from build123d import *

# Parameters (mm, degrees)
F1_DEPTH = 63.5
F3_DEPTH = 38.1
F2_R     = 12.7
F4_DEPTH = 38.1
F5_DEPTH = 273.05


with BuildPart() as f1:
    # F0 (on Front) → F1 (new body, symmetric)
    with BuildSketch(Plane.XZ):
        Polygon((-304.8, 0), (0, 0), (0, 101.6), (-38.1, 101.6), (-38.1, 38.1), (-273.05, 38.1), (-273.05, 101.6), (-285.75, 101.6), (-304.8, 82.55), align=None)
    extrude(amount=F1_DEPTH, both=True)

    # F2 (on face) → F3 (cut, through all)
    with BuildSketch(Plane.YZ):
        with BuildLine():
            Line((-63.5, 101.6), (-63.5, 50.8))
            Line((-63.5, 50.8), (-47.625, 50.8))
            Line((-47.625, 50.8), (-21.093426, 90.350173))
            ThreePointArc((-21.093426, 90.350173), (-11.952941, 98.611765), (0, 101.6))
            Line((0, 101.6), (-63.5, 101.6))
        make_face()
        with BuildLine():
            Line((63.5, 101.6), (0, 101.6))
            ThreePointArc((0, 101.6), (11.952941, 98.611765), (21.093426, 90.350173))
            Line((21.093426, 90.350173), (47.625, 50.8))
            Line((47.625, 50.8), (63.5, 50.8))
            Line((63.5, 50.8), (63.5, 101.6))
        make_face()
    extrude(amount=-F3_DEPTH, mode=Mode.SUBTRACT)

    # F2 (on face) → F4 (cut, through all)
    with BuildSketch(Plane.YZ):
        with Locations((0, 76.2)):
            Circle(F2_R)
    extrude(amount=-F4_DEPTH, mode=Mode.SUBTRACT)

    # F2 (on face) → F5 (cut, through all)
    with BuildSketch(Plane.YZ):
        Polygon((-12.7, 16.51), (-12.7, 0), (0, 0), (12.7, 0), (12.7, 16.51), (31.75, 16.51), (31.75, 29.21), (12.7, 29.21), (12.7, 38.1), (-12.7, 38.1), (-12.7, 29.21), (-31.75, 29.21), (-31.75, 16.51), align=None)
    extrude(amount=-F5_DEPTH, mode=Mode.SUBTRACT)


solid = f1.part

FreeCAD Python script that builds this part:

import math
import FreeCAD as App
import Part
import Sketcher

V = App.Vector
Q = App.Units.Quantity


def add_polygon(sketch, points):
    """Adds a closed chain of lines whose ends are joined by coincident constraints."""
    first, n = sketch.GeometryCount, len(points)
    for a, b in zip(points, points[1:] + points[:1]):
        sketch.addGeometry(Part.LineSegment(App.Vector(*a, 0), App.Vector(*b, 0)), False)
    for i in range(n):
        sketch.addConstraint(Sketcher.Constraint("Coincident", first + i, 2, first + (i + 1) % n, 1))

doc = App.newDocument("Part")
params = doc.addObject("Spreadsheet::Sheet", "Params")
for row, (alias, value) in enumerate([
    ("sketch1_width", "12 in"),
    ("sketch1_height", "4 in"),
    ("sketch1_width2", "1.5 in"),
    ("sketch1_width3", "0.5 in"),
    ("sketch1_height2", "2.5 in"),
    ("pad1_length", "5 in"),
    ("sketch2_radius", "1 in"),
    ("sketch2_height", "2 in"),
    ("sketch2_width", "2.5 in"),
    ("sketch2_width2", "0.625 in"),
    ("pocket1_length", "1.5 in"),
    ("sketch3_diameter", "1 in"),
    ("pocket2_length", "1.5 in"),
    ("sketch4_width", "1 in"),
    ("sketch4_height", "0.5 in"),
    ("sketch4_width2", "0.75 in"),
    ("sketch4_height2", "0.65 in"),
    ("sketch4_height3", "0.35 in"),
    ("pocket3_length", "10.75 in"),
], start=1):
    params.set(f"A{row}", alias)
    params.set(f"B{row}", "=" + value)
    params.setAlias(f"B{row}", alias)

body = doc.addObject("PartDesign::Body", "Body")

sketch1 = doc.addObject("Sketcher::SketchObject", "Sketch")
body.addObject(sketch1)
sketch1.AttachmentSupport = (doc.XZ_Plane, [""])
sketch1.MapMode = "FlatFace"
add_polygon(sketch1, [(-304.8, 0), (0, 0), (0, 101.6), (-38.1, 101.6), (-38.1, 38.1), (-273.05, 38.1), (-273.05, 101.6), (-285.75, 101.6), (-304.8, 82.55)])
sketch1.addConstraint(Sketcher.Constraint("Horizontal", 0))
sketch1.addConstraint(Sketcher.Constraint("Vertical", 1))
sketch1.addConstraint(Sketcher.Constraint("Horizontal", 2))
sketch1.addConstraint(Sketcher.Constraint("Vertical", 3))
sketch1.addConstraint(Sketcher.Constraint("Horizontal", 4))
sketch1.addConstraint(Sketcher.Constraint("Vertical", 5))
sketch1.addConstraint(Sketcher.Constraint("Horizontal", 6))
sketch1.addConstraint(Sketcher.Constraint("Vertical", 8))
sketch1.addConstraint(Sketcher.Constraint("Coincident", 0, 2, -1, 1))
sketch1.addConstraint(Sketcher.Constraint("Horizontal", 2, 2, 5, 2))
sketch1.addConstraint(Sketcher.Constraint("DistanceX", 0, 1, 0, 2, Q("12 in")))
sketch1.addConstraint(Sketcher.Constraint("DistanceY", 1, 1, 1, 2, Q("4 in")))
sketch1.addConstraint(Sketcher.Constraint("DistanceX", 2, 2, 2, 1, Q("1.5 in")))
sketch1.addConstraint(Sketcher.Constraint("DistanceX", 6, 2, 6, 1, Q("0.5 in")))
sketch1.addConstraint(Sketcher.Constraint("DistanceY", 3, 2, 3, 1, Q("2.5 in")))
sketch1.addConstraint(Sketcher.Constraint("Angle", 7, Q("-135 deg")))
sketch1.addConstraint(Sketcher.Constraint("DistanceX", 4, 2, 4, 1, Q("9.25 in")))
sketch1.setExpression("Constraints[19]", "Params.sketch1_width")
sketch1.setExpression("Constraints[20]", "Params.sketch1_height")
sketch1.setExpression("Constraints[21]", "Params.sketch1_width2")
sketch1.setExpression("Constraints[22]", "Params.sketch1_width3")
sketch1.setExpression("Constraints[23]", "Params.sketch1_height2")
pad1 = doc.addObject("PartDesign::Pad", "Pad")
body.addObject(pad1)
pad1.Profile = sketch1
pad1.setExpression("Length", "Params.pad1_length")
pad1.Midplane = True

sketch2 = doc.addObject("Sketcher::SketchObject", "Sketch001")
body.addObject(sketch2)
sketch2.AttachmentSupport = (doc.YZ_Plane, [""])
sketch2.MapMode = "FlatFace"
sketch2.addGeometry(Part.LineSegment(V(-63.5, 101.6, 0), V(-63.5, 50.8, 0)), False)
sketch2.addGeometry(Part.LineSegment(V(-63.5, 50.8, 0), V(-47.625, 50.8, 0)), False)
sketch2.addGeometry(Part.LineSegment(V(-47.625, 50.8, 0), V(-21.093426, 90.350173, 0)), False)
sketch2.addGeometry(Part.ArcOfCircle(Part.Circle(V(0, 76.2, 0), V(0, 0, 1), 25.4), math.radians(89.999999), math.radians(146.144974)), False)
sketch2.addGeometry(Part.LineSegment(V(0, 101.6, 0), V(-63.5, 101.6, 0)), False)
sketch2.addGeometry(Part.LineSegment(V(63.5, 101.6, 0), V(0, 101.6, 0)), False)
sketch2.addGeometry(Part.ArcOfCircle(Part.Circle(V(0, 76.2, 0), V(0, 0, 1), 25.4), math.radians(33.855026), math.radians(90.000001)), False)
sketch2.addGeometry(Part.LineSegment(V(21.093426, 90.350173, 0), V(47.625, 50.8, 0)), False)
sketch2.addGeometry(Part.LineSegment(V(47.625, 50.8, 0), V(63.5, 50.8, 0)), False)
sketch2.addGeometry(Part.LineSegment(V(63.5, 50.8, 0), V(63.5, 101.6, 0)), False)
sketch2.addConstraint(Sketcher.Constraint("Coincident", 0, 2, 1, 1))
sketch2.addConstraint(Sketcher.Constraint("Coincident", 1, 2, 2, 1))
sketch2.addConstraint(Sketcher.Constraint("Tangent", 2, 2, 3, 2))
sketch2.addConstraint(Sketcher.Constraint("Tangent", 3, 1, 4, 1))
sketch2.addConstraint(Sketcher.Constraint("Coincident", 4, 2, 0, 1))
sketch2.addConstraint(Sketcher.Constraint("Tangent", 5, 2, 6, 2))
sketch2.addConstraint(Sketcher.Constraint("Tangent", 6, 1, 7, 1))
sketch2.addConstraint(Sketcher.Constraint("Coincident", 7, 2, 8, 1))
sketch2.addConstraint(Sketcher.Constraint("Coincident", 8, 2, 9, 1))
sketch2.addConstraint(Sketcher.Constraint("Coincident", 9, 2, 5, 1))
sketch2.addConstraint(Sketcher.Constraint("Vertical", 0))
sketch2.addConstraint(Sketcher.Constraint("Horizontal", 1))
sketch2.addConstraint(Sketcher.Constraint("Horizontal", 4))
sketch2.addConstraint(Sketcher.Constraint("Horizontal", 5))
sketch2.addConstraint(Sketcher.Constraint("Horizontal", 8))
sketch2.addConstraint(Sketcher.Constraint("Vertical", 9))
sketch2.addConstraint(Sketcher.Constraint("Coincident", 6, 3, 3, 3))
sketch2.addConstraint(Sketcher.Constraint("Equal", 3, 6))
sketch2.addConstraint(Sketcher.Constraint("Symmetric", 2, 2, 6, 1, -2))
sketch2.addConstraint(Sketcher.Constraint("Symmetric", 0, 2, 8, 2, -2))
sketch2.addConstraint(Sketcher.Constraint("Radius", 3, Q("1 in")))
sketch2.addConstraint(Sketcher.Constraint("DistanceY", 0, 2, 0, 1, Q("2 in")))
sketch2.addConstraint(Sketcher.Constraint("DistanceX", 4, 2, 4, 1, Q("2.5 in")))
sketch2.addConstraint(Sketcher.Constraint("DistanceY", -1, 1, 3, 3, Q("3 in")))
sketch2.addConstraint(Sketcher.Constraint("DistanceX", 1, 1, 1, 2, Q("0.625 in")))
sketch2.setExpression("Constraints[20]", "Params.sketch2_radius")
sketch2.setExpression("Constraints[21]", "Params.sketch2_height")
sketch2.setExpression("Constraints[22]", "Params.sketch2_width")
sketch2.setExpression("Constraints[24]", "Params.sketch2_width2")
pocket1 = doc.addObject("PartDesign::Pocket", "Pocket")
body.addObject(pocket1)
pocket1.Profile = sketch2
pocket1.setExpression("Length", "Params.pocket1_length")

sketch3 = doc.addObject("Sketcher::SketchObject", "Sketch002")
body.addObject(sketch3)
sketch3.AttachmentSupport = (doc.YZ_Plane, [""])
sketch3.MapMode = "FlatFace"
sketch3.addGeometry(Part.Circle(V(0, 76.2, 0), V(0, 0, 1), 12.7), False)
sketch3.addConstraint(Sketcher.Constraint("PointOnObject", 0, 3, -2))
sketch3.addConstraint(Sketcher.Constraint("Diameter", 0, Q("1 in")))
sketch3.addConstraint(Sketcher.Constraint("DistanceY", -1, 1, 0, 3, Q("3 in")))
sketch3.setExpression("Constraints[1]", "Params.sketch3_diameter")
pocket2 = doc.addObject("PartDesign::Pocket", "Pocket001")
body.addObject(pocket2)
pocket2.Profile = sketch3
pocket2.setExpression("Length", "Params.pocket2_length")

sketch4 = doc.addObject("Sketcher::SketchObject", "Sketch003")
body.addObject(sketch4)
sketch4.AttachmentSupport = (doc.YZ_Plane, [""])
sketch4.MapMode = "FlatFace"
add_polygon(sketch4, [(-12.7, 16.51), (-12.7, 0), (12.7, 0), (12.7, 16.51), (31.75, 16.51), (31.75, 29.21), (12.7, 29.21), (12.7, 38.1), (-12.7, 38.1), (-12.7, 29.21), (-31.75, 29.21), (-31.75, 16.51)])
sketch4.addConstraint(Sketcher.Constraint("Vertical", 0))
sketch4.addConstraint(Sketcher.Constraint("Horizontal", 1))
sketch4.addConstraint(Sketcher.Constraint("Vertical", 2))
sketch4.addConstraint(Sketcher.Constraint("Horizontal", 3))
sketch4.addConstraint(Sketcher.Constraint("Vertical", 4))
sketch4.addConstraint(Sketcher.Constraint("Horizontal", 5))
sketch4.addConstraint(Sketcher.Constraint("Vertical", 6))
sketch4.addConstraint(Sketcher.Constraint("Horizontal", 7))
sketch4.addConstraint(Sketcher.Constraint("Vertical", 8))
sketch4.addConstraint(Sketcher.Constraint("Horizontal", 9))
sketch4.addConstraint(Sketcher.Constraint("Vertical", 10))
sketch4.addConstraint(Sketcher.Constraint("Horizontal", 11))
sketch4.addConstraint(Sketcher.Constraint("Symmetric", 0, 2, 1, 2, -1, 1))
sketch4.addConstraint(Sketcher.Constraint("Symmetric", 5, 2, 8, 2, -2))
sketch4.addConstraint(Sketcher.Constraint("Symmetric", 3, 2, 10, 2, -2))
sketch4.addConstraint(Sketcher.Constraint("Vertical", 2, 2, 5, 2))
sketch4.addConstraint(Sketcher.Constraint("DistanceX", 1, 1, 1, 2, Q("1 in")))
sketch4.addConstraint(Sketcher.Constraint("DistanceY", 4, 1, 4, 2, Q("0.5 in")))
sketch4.addConstraint(Sketcher.Constraint("DistanceX", 3, 1, 3, 2, Q("0.75 in")))
sketch4.addConstraint(Sketcher.Constraint("DistanceY", 0, 2, 0, 1, Q("0.65 in")))
sketch4.addConstraint(Sketcher.Constraint("DistanceY", 6, 1, 6, 2, Q("0.35 in")))
sketch4.setExpression("Constraints[28]", "Params.sketch4_width")
sketch4.setExpression("Constraints[29]", "Params.sketch4_height")
sketch4.setExpression("Constraints[30]", "Params.sketch4_width2")
sketch4.setExpression("Constraints[31]", "Params.sketch4_height2")
sketch4.setExpression("Constraints[32]", "Params.sketch4_height3")
pocket3 = doc.addObject("PartDesign::Pocket", "Pocket002")
body.addObject(pocket3)
pocket3.Profile = sketch4
pocket3.setExpression("Length", "Params.pocket3_length")

doc.recompute()
